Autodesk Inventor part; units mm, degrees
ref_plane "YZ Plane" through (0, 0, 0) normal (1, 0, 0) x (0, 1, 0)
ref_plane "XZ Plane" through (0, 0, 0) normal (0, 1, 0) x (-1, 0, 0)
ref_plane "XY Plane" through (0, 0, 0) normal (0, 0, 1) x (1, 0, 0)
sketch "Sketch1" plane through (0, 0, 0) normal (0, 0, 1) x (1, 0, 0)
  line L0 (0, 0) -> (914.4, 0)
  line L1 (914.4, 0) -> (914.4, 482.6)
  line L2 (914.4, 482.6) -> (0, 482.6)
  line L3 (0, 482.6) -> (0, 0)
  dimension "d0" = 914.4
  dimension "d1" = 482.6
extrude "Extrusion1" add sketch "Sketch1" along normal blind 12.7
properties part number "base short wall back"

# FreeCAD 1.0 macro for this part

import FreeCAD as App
import Part
import Sketcher
Q = App.Units.Quantity

doc = App.newDocument("Part")
body = doc.addObject("PartDesign::Body", "Body")

sketch1 = body.newObject("Sketcher::SketchObject", "Sketch")
sketch1.AttachmentSupport = (doc.getObject("XY_Plane"), [""])
sketch1.MapMode = "FlatFace"
sketch1.addGeometry([
    Part.LineSegment(App.Vector(0, 483, 0), App.Vector(0, 0, 0)),
    Part.LineSegment(App.Vector(0, 0, 0), App.Vector(914, 0, 0)),
    Part.LineSegment(App.Vector(914, 0, 0), App.Vector(914, 483, 0)),
    Part.LineSegment(App.Vector(914, 483, 0), App.Vector(0, 483, 0)),
], False)
sketch1.addConstraint([
    Sketcher.Constraint("Coincident", 0, 2, 1, 1),
    Sketcher.Constraint("Coincident", 1, 2, 2, 1),
    Sketcher.Constraint("Coincident", 2, 2, 3, 1),
    Sketcher.Constraint("Coincident", 3, 2, 0, 1),
    Sketcher.Constraint("Vertical", 0),
    Sketcher.Constraint("Horizontal", 1),
    Sketcher.Constraint("Vertical", 2),
    Sketcher.Constraint("Horizontal", 3),
    Sketcher.Constraint("Coincident", 0, 2, -1, 1),
    Sketcher.Constraint("DistanceX", 1, 1, 1, 2, Q("36 in")),
    Sketcher.Constraint("DistanceY", 0, 2, 0, 1, Q("19 in")),
])
pad1 = body.newObject("PartDesign::Pad", "Pad")
pad1.Profile = sketch1
pad1.Length = Q("0.5 in")

doc.recompute()
